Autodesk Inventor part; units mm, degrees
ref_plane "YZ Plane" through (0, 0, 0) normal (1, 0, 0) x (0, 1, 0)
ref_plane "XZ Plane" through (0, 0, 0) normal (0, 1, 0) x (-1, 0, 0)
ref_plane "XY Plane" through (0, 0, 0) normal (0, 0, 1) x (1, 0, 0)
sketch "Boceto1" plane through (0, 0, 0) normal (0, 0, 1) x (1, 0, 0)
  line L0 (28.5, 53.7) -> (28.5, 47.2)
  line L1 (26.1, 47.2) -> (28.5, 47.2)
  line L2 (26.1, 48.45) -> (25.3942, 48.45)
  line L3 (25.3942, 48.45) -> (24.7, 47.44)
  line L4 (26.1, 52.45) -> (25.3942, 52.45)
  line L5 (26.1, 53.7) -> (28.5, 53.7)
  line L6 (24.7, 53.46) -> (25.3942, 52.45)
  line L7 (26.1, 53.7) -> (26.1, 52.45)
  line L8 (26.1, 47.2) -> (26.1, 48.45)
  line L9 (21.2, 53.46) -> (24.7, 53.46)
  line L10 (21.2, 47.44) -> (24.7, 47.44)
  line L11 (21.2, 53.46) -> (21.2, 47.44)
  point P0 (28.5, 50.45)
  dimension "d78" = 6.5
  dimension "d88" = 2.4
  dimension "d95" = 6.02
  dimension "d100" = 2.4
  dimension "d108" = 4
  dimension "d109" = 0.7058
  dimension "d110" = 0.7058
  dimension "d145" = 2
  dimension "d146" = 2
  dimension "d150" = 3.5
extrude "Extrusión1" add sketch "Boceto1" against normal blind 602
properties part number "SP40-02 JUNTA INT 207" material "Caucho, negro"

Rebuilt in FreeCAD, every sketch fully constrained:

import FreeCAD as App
import Part
import Sketcher
from FreeCAD import Vector
Q = App.Units.Quantity


def add_polygon(sketch, points):
    """Adds a closed chain of lines whose ends are joined by coincident constraints."""
    first, n = sketch.GeometryCount, len(points)
    for a, b in zip(points, points[1:] + points[:1]):
        sketch.addGeometry(Part.LineSegment(App.Vector(*a, 0), App.Vector(*b, 0)), False)
    for i in range(n):
        sketch.addConstraint(Sketcher.Constraint("Coincident", first + i, 2, first + (i + 1) % n, 1))

doc = App.newDocument("Part")
body = doc.addObject("PartDesign::Body", "Body")

# Sketch on XY plane
sketch1 = body.newObject("Sketcher::SketchObject", "Sketch")
sketch1.AttachmentSupport = (doc.getObject("XY_Plane"), [""])
sketch1.MapMode = "FlatFace"
add_polygon(sketch1, [(28.5, 47.2), (28.5, 53.7), (26.1, 53.7), (26.1, 52.45), (25.3942, 52.45), (24.7, 53.46), (21.2, 53.46), (21.2, 47.44), (24.7, 47.44), (25.3942, 48.45), (26.1, 48.45), (26.1, 47.2)])  # lines 0-11
sketch1.addConstraint([
    Sketcher.Constraint("Vertical", 0),
    Sketcher.Constraint("Horizontal", 1),
    Sketcher.Constraint("Vertical", 2),
    Sketcher.Constraint("Horizontal", 3),
    Sketcher.Constraint("Horizontal", 5),
    Sketcher.Constraint("Vertical", 6),
    Sketcher.Constraint("Horizontal", 7),
    Sketcher.Constraint("Horizontal", 9),
    Sketcher.Constraint("Vertical", 10),
    Sketcher.Constraint("Horizontal", 11),
    Sketcher.Constraint("Vertical", 4, 2, 7, 2),
    Sketcher.Constraint("Vertical", 3, 2, 8, 2),
    Sketcher.Constraint("Vertical", 2, 2, 9, 2),
    Sketcher.Constraint("Equal", 2, 10),
    Sketcher.Constraint("Equal", 4, 8),
    Sketcher.Constraint("DistanceX", 1, 2, 1, 1, Q("2.4 mm")),
    Sketcher.Constraint("DistanceX", 5, 2, 5, 1, Q("3.5 mm")),
    Sketcher.Constraint("DistanceY", 0, 1, 0, 2, Q("6.5 mm")),
    Sketcher.Constraint("DistanceY", 8, 2, 3, 2, Q("4 mm")),
    Sketcher.Constraint("DistanceY", 6, 2, 6, 1, Q("6.02 mm")),
    Sketcher.Constraint("DistanceX", 3, 2, 3, 1, Q("0.7058 mm")),
    Sketcher.Constraint("DistanceX", -1, 1, 0, 2, Q("28.5 mm")),
    Sketcher.Constraint("DistanceY", -1, 1, 0, 2, Q("53.7 mm")),
    Sketcher.Constraint("DistanceX", -1, 1, 4, 2, Q("24.7 mm")),
])
pad1 = body.newObject("PartDesign::Pad", "Pad")
pad1.Profile = sketch1
pad1.Length = 602
pad1.Reversed = True

doc.recompute()
